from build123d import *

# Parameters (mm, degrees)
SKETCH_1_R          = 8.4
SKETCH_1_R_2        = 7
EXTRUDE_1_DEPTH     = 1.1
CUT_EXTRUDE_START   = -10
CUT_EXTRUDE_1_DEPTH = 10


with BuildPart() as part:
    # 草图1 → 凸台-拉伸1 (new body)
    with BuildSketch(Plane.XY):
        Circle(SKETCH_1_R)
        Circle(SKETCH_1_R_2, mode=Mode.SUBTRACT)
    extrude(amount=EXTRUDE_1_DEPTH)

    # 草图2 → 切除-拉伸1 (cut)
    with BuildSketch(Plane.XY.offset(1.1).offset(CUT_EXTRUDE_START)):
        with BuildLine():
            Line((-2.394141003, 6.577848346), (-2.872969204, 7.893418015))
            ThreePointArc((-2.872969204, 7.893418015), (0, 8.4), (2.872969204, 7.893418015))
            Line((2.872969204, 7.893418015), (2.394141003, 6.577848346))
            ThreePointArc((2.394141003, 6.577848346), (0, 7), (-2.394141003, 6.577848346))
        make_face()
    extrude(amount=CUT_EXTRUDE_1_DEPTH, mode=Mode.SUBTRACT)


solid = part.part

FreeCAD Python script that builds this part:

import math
import FreeCAD as App
import Part
import Sketcher

V = App.Vector
Q = App.Units.Quantity

doc = App.newDocument("Part")
params = doc.addObject("Spreadsheet::Sheet", "Params")
for row, (alias, value) in enumerate([
    ("sketch1_diameter", "14 mm"),
    ("sketch1_diameter2", "16.8 mm"),
    ("pad1_length", "1.1 mm"),
    ("sketch2_radius", "7 mm"),
    ("sketch2_radius2", "8.4 mm"),
    ("pocket1_length", "10 mm"),
], start=1):
    params.set(f"A{row}", alias)
    params.set(f"B{row}", "=" + value)
    params.setAlias(f"B{row}", alias)

body = doc.addObject("PartDesign::Body", "Body")

# Sketch on XY plane
sketch1 = doc.addObject("Sketcher::SketchObject", "Sketch")
body.addObject(sketch1)
sketch1.AttachmentSupport = (doc.XY_Plane, [""])
sketch1.MapMode = "FlatFace"
sketch1.addGeometry(Part.Circle(V(0, 0, 0), V(0, 0, 1), 8.4), False)
sketch1.addGeometry(Part.Circle(V(0, 0, 0), V(0, 0, 1), 7), False)
sketch1.addConstraint(Sketcher.Constraint("Coincident", 0, 3, -1, 1))
sketch1.addConstraint(Sketcher.Constraint("Coincident", 1, 3, -1, 1))
sketch1.addConstraint(Sketcher.Constraint("Diameter", 1, Q("14 mm")))
sketch1.addConstraint(Sketcher.Constraint("Diameter", 0, Q("16.8 mm")))
sketch1.setExpression("Constraints[2]", "Params.sketch1_diameter")
sketch1.setExpression("Constraints[3]", "Params.sketch1_diameter2")
pad1 = doc.addObject("PartDesign::Pad", "Pad")
body.addObject(pad1)
pad1.Profile = sketch1
pad1.setExpression("Length", "Params.pad1_length")

# Sketch on XY plane
sketch2 = doc.addObject("Sketcher::SketchObject", "Sketch001")
body.addObject(sketch2)
sketch2.AttachmentSupport = (doc.XY_Plane, [""])
sketch2.MapMode = "FlatFace"
sketch2.AttachmentOffset = App.Placement(V(0, 0, -8.9), App.Rotation())
sketch2.addGeometry(Part.LineSegment(V(-2.872969, 7.893418, 0), V(-2.394141, 6.577848, 0)), False)
sketch2.addGeometry(Part.ArcOfCircle(Part.Circle(V(0, 0, 0), V(0, 0, 1), 7), math.radians(70), math.radians(110)), False)
sketch2.addGeometry(Part.LineSegment(V(2.394141, 6.577848, 0), V(2.872969, 7.893418, 0)), False)
sketch2.addGeometry(Part.ArcOfCircle(Part.Circle(V(0, 0, 0), V(0, 0, 1), 8.4), math.radians(70), math.radians(110)), False)
sketch2.addConstraint(Sketcher.Constraint("Coincident", 0, 2, 1, 2))
sketch2.addConstraint(Sketcher.Constraint("Coincident", 1, 1, 2, 1))
sketch2.addConstraint(Sketcher.Constraint("Coincident", 2, 2, 3, 1))
sketch2.addConstraint(Sketcher.Constraint("Coincident", 3, 2, 0, 1))
sketch2.addConstraint(Sketcher.Constraint("Coincident", 1, 3, -1, 1))
sketch2.addConstraint(Sketcher.Constraint("Coincident", 3, 3, -1, 1))
sketch2.addConstraint(Sketcher.Constraint("Horizontal", 0, 2, 1, 1))
sketch2.addConstraint(Sketcher.Constraint("Horizontal", 2, 2, 3, 2))
sketch2.addConstraint(Sketcher.Constraint("Radius", 1, Q("7 mm")))
sketch2.addConstraint(Sketcher.Constraint("Radius", 3, Q("8.4 mm")))
sketch2.addConstraint(Sketcher.Constraint("Angle", 0, Q("-70 deg")))
sketch2.addConstraint(Sketcher.Constraint("DistanceX", 0, 2, -1, 1, Q("2.394141 mm")))
sketch2.setExpression("Constraints[8]", "Params.sketch2_radius")
sketch2.setExpression("Constraints[9]", "Params.sketch2_radius2")
pocket1 = doc.addObject("PartDesign::Pocket", "Pocket")
body.addObject(pocket1)
pocket1.Profile = sketch2
pocket1.setExpression("Length", "Params.pocket1_length")
pocket1.Reversed = True

doc.recompute()
